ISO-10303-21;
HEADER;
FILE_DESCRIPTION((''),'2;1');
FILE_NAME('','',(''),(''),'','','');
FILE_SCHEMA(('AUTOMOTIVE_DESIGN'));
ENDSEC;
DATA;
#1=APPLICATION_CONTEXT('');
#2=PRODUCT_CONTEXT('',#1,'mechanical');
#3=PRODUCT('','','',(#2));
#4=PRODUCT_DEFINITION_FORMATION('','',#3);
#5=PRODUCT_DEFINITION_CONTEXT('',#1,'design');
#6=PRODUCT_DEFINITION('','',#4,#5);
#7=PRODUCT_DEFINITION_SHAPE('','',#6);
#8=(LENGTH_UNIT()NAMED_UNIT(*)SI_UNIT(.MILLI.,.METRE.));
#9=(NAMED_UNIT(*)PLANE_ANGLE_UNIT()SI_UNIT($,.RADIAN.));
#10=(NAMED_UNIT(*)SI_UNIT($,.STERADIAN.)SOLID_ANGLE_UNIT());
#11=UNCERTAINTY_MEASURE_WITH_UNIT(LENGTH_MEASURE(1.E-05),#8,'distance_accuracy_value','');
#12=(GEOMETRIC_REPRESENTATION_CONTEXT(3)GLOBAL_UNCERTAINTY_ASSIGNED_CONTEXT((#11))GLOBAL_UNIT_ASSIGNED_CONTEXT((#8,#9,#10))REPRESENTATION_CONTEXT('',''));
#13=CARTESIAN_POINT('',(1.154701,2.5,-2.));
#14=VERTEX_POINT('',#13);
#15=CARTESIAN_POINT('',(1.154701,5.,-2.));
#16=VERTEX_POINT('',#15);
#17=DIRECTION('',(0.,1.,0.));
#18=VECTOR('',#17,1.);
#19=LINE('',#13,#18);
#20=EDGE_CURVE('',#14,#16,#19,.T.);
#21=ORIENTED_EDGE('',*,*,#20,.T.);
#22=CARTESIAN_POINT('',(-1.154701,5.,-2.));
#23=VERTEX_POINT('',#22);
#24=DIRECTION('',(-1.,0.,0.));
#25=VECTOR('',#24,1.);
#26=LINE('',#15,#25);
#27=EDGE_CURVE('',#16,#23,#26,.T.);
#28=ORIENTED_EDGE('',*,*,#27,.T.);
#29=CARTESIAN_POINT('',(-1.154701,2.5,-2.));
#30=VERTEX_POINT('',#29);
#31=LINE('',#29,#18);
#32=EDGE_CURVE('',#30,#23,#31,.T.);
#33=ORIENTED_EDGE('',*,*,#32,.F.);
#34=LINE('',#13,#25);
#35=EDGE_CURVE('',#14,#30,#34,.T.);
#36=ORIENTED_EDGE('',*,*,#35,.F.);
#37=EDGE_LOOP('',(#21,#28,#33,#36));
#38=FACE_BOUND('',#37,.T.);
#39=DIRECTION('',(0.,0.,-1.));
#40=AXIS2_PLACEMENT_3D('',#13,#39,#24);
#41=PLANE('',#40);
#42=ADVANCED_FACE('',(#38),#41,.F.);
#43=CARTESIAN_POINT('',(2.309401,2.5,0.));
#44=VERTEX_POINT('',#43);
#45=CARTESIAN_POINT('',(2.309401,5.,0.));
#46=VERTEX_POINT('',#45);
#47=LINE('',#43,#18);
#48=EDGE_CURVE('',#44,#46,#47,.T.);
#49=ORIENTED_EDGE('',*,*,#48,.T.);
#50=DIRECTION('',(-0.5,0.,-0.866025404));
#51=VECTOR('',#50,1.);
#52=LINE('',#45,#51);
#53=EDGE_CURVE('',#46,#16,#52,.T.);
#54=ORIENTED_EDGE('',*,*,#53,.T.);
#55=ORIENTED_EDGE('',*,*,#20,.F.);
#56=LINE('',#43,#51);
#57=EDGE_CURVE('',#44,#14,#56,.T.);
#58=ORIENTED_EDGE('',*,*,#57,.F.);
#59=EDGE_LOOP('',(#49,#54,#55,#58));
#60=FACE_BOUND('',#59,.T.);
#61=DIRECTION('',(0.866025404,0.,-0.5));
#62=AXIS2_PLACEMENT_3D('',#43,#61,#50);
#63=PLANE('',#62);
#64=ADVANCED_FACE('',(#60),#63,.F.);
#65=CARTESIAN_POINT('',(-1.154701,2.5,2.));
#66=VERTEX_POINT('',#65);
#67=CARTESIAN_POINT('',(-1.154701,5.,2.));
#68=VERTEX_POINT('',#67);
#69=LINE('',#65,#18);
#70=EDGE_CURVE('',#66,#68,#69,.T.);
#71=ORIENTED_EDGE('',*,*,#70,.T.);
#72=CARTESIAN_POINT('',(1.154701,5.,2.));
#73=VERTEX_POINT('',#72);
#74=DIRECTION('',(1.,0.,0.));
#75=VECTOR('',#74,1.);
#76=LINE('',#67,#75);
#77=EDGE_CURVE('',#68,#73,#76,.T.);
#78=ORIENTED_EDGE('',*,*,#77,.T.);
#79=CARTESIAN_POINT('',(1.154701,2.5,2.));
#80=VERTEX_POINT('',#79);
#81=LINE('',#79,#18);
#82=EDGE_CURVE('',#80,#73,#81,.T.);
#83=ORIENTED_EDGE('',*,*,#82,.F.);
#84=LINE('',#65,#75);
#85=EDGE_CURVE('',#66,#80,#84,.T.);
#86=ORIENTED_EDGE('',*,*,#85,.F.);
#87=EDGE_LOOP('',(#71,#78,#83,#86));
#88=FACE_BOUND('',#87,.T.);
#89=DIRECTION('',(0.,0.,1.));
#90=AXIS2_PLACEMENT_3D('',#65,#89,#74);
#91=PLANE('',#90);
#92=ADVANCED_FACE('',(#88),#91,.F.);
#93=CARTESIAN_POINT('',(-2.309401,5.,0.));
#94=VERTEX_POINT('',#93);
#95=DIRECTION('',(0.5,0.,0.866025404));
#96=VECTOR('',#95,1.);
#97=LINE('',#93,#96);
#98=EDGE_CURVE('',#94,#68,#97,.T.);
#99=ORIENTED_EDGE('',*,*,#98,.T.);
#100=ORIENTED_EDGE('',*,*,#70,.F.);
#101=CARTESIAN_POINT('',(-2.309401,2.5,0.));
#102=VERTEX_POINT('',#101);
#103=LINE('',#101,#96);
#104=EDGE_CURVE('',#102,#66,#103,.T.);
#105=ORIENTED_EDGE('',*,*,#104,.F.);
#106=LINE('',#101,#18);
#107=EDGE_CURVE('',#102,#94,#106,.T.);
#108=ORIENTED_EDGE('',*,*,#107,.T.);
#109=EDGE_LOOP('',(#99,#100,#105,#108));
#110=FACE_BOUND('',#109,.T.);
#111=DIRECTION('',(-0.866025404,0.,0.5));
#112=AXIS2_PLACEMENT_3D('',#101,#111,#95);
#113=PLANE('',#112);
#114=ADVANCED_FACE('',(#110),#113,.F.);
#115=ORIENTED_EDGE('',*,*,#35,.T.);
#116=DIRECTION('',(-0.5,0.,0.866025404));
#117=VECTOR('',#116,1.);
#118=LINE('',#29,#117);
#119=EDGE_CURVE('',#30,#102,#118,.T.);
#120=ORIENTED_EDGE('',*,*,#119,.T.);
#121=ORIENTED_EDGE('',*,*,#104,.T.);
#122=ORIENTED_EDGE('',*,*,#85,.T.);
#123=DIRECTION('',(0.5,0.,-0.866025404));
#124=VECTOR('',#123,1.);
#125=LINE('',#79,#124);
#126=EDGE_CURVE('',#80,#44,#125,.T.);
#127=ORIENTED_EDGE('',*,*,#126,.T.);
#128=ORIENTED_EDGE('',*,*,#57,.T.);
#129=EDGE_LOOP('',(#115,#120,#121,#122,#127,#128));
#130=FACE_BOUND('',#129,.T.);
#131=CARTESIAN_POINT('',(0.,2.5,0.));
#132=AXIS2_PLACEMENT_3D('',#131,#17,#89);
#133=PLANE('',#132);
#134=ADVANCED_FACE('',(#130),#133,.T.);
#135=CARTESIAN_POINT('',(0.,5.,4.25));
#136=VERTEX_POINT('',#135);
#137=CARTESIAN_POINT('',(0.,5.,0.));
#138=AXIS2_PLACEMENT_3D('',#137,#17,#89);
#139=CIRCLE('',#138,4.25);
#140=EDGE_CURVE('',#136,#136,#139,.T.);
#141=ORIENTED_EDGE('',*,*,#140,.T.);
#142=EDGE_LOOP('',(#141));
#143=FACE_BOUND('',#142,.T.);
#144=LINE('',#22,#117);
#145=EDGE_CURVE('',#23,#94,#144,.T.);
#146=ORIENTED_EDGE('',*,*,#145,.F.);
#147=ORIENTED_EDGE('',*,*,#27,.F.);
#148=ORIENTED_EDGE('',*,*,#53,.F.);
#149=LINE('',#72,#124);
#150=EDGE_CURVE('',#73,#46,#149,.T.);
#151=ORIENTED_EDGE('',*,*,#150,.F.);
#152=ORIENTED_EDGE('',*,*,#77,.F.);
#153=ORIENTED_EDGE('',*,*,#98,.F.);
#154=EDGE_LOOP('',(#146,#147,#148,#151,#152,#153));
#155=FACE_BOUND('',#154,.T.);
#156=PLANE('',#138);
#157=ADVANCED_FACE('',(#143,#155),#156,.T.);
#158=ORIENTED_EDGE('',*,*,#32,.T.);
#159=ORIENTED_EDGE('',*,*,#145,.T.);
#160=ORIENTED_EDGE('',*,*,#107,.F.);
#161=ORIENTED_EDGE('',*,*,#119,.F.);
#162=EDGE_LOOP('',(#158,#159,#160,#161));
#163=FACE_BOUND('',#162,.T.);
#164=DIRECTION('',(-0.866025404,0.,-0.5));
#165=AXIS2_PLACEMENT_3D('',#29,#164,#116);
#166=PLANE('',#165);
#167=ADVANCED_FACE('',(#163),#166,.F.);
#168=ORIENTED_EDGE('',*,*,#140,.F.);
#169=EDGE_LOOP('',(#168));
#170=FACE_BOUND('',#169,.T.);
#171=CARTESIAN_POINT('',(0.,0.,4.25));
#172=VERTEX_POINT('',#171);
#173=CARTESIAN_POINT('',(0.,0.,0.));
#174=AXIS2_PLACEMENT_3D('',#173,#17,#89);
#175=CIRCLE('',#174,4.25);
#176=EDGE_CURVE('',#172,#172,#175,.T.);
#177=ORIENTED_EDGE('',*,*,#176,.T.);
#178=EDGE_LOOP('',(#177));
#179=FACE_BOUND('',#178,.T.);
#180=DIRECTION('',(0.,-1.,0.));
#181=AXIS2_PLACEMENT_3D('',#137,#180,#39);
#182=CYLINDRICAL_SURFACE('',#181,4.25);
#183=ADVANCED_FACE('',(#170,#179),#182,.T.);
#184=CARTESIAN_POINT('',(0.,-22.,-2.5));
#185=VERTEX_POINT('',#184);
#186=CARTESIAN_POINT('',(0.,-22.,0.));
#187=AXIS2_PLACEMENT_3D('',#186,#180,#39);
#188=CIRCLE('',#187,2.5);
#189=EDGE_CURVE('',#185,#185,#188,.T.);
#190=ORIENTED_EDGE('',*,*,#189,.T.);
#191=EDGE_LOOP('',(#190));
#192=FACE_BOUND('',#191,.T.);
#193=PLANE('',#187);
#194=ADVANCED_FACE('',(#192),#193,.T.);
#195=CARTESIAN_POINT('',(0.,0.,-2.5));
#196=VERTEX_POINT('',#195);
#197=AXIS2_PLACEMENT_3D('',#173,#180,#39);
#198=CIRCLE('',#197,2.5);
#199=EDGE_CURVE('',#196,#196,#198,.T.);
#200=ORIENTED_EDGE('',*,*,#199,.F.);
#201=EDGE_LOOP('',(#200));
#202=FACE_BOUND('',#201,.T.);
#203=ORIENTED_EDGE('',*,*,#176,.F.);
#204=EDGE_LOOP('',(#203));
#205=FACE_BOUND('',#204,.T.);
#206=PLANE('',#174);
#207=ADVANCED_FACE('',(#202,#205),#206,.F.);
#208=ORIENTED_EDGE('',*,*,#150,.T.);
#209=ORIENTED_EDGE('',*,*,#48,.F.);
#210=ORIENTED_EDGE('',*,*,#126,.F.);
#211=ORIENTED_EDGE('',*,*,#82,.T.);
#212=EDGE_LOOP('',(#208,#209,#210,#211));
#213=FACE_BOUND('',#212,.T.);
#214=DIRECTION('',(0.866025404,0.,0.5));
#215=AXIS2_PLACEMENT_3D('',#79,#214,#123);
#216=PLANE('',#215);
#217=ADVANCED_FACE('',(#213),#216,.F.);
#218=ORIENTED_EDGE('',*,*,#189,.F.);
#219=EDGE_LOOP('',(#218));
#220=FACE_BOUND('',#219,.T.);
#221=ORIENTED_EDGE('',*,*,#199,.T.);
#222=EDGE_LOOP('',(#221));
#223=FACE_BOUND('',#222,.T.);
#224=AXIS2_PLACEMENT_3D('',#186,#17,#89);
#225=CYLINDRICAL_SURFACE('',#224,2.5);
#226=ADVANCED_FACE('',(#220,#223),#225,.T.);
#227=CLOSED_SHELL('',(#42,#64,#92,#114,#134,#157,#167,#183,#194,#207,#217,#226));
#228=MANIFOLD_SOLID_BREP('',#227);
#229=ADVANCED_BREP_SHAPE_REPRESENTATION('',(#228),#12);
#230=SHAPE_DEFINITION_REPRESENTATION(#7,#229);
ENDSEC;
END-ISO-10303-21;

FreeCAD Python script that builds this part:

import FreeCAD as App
import Part
import Sketcher
Q = App.Units.Quantity


def add_polygon(sketch, points):
    """Adds a closed chain of lines whose ends are joined by coincident constraints."""
    first, n = sketch.GeometryCount, len(points)
    for a, b in zip(points, points[1:] + points[:1]):
        sketch.addGeometry(Part.LineSegment(App.Vector(*a, 0), App.Vector(*b, 0)), False)
    for i in range(n):
        sketch.addConstraint(Sketcher.Constraint("Coincident", first + i, 2, first + (i + 1) % n, 1))

doc = App.newDocument("Part")
params = doc.addObject("Spreadsheet::Sheet", "Params")
for row, (alias, value) in enumerate([
    ("sketch1_diameter", "8.5 mm"),
    ("pad1_length", "5 mm"),
    ("pocket1_length", "2.5 mm"),
    ("sketch3_diameter", "5 mm"),
    ("pad2_length", "22 mm"),
], start=1):
    params.set(f"A{row}", alias)
    params.set(f"B{row}", "=" + value)
    params.setAlias(f"B{row}", alias)

body = doc.addObject("PartDesign::Body", "Body")

sketch1 = body.newObject("Sketcher::SketchObject", "Sketch")
sketch1.AttachmentSupport = (doc.getObject("XZ_Plane"), [""])
sketch1.MapMode = "FlatFace"
sketch1.addGeometry(Part.Circle(App.Vector(0, 0, 0), App.Vector(0, 0, 1), 4.25), False)
sketch1.addConstraint([
    Sketcher.Constraint("Coincident", 0, 3, -1, 1),
    Sketcher.Constraint("Diameter", 0, 8.5),
])
sketch1.setExpression("Constraints[1]", "Params.sketch1_diameter")
pad1 = body.newObject("PartDesign::Pad", "Pad")
pad1.Profile = sketch1
pad1.setExpression("Length", "Params.pad1_length")
pad1.Reversed = True

sketch2 = body.newObject("Sketcher::SketchObject", "Sketch001")
sketch2.AttachmentSupport = (doc.getObject("XZ_Plane"), [""])
sketch2.MapMode = "FlatFace"
sketch2.AttachmentOffset = App.Placement(App.Vector(0, 0, -5), App.Rotation())
add_polygon(sketch2, [(2.309401, 0), (1.154701, -2), (-1.154701, -2), (-2.309401, 0), (-1.154701, 2), (1.154701, 2)])
sketch2.addConstraint([
    Sketcher.Constraint("Horizontal", 1),
    Sketcher.Constraint("Horizontal", 4),
    Sketcher.Constraint("Symmetric", 0, 2, 3, 2, -1, 1),
    Sketcher.Constraint("Symmetric", 2, 2, 5, 2, -1, 1),
    Sketcher.Constraint("PointOnObject", 2, 2, -1),
    Sketcher.Constraint("Parallel", 2, 5),
    Sketcher.Constraint("Vertical", 1, 2, 3, 2),
    Sketcher.Constraint("Angle", 0, Q("-120 deg")),
    Sketcher.Constraint("DistanceY", 0, 2, -1, 1, 2.0),
    Sketcher.Constraint("DistanceX", 1, 2, 1, 1, 2.309401),
])
pocket1 = body.newObject("PartDesign::Pocket", "Pocket")
pocket1.Profile = sketch2
pocket1.setExpression("Length", "Params.pocket1_length")
pocket1.Reversed = True

sketch3 = body.newObject("Sketcher::SketchObject", "Sketch002")
sketch3.AttachmentSupport = (doc.getObject("XZ_Plane"), [""])
sketch3.MapMode = "FlatFace"
sketch3.addGeometry(Part.Circle(App.Vector(0, 0, 0), App.Vector(0, 0, 1), 2.5), False)
sketch3.addConstraint([
    Sketcher.Constraint("Coincident", 0, 3, -1, 1),
    Sketcher.Constraint("Diameter", 0, 5.0),
])
sketch3.setExpression("Constraints[1]", "Params.sketch3_diameter")
pad2 = body.newObject("PartDesign::Pad", "Pad001")
pad2.Profile = sketch3
pad2.setExpression("Length", "Params.pad2_length")

doc.recompute()
